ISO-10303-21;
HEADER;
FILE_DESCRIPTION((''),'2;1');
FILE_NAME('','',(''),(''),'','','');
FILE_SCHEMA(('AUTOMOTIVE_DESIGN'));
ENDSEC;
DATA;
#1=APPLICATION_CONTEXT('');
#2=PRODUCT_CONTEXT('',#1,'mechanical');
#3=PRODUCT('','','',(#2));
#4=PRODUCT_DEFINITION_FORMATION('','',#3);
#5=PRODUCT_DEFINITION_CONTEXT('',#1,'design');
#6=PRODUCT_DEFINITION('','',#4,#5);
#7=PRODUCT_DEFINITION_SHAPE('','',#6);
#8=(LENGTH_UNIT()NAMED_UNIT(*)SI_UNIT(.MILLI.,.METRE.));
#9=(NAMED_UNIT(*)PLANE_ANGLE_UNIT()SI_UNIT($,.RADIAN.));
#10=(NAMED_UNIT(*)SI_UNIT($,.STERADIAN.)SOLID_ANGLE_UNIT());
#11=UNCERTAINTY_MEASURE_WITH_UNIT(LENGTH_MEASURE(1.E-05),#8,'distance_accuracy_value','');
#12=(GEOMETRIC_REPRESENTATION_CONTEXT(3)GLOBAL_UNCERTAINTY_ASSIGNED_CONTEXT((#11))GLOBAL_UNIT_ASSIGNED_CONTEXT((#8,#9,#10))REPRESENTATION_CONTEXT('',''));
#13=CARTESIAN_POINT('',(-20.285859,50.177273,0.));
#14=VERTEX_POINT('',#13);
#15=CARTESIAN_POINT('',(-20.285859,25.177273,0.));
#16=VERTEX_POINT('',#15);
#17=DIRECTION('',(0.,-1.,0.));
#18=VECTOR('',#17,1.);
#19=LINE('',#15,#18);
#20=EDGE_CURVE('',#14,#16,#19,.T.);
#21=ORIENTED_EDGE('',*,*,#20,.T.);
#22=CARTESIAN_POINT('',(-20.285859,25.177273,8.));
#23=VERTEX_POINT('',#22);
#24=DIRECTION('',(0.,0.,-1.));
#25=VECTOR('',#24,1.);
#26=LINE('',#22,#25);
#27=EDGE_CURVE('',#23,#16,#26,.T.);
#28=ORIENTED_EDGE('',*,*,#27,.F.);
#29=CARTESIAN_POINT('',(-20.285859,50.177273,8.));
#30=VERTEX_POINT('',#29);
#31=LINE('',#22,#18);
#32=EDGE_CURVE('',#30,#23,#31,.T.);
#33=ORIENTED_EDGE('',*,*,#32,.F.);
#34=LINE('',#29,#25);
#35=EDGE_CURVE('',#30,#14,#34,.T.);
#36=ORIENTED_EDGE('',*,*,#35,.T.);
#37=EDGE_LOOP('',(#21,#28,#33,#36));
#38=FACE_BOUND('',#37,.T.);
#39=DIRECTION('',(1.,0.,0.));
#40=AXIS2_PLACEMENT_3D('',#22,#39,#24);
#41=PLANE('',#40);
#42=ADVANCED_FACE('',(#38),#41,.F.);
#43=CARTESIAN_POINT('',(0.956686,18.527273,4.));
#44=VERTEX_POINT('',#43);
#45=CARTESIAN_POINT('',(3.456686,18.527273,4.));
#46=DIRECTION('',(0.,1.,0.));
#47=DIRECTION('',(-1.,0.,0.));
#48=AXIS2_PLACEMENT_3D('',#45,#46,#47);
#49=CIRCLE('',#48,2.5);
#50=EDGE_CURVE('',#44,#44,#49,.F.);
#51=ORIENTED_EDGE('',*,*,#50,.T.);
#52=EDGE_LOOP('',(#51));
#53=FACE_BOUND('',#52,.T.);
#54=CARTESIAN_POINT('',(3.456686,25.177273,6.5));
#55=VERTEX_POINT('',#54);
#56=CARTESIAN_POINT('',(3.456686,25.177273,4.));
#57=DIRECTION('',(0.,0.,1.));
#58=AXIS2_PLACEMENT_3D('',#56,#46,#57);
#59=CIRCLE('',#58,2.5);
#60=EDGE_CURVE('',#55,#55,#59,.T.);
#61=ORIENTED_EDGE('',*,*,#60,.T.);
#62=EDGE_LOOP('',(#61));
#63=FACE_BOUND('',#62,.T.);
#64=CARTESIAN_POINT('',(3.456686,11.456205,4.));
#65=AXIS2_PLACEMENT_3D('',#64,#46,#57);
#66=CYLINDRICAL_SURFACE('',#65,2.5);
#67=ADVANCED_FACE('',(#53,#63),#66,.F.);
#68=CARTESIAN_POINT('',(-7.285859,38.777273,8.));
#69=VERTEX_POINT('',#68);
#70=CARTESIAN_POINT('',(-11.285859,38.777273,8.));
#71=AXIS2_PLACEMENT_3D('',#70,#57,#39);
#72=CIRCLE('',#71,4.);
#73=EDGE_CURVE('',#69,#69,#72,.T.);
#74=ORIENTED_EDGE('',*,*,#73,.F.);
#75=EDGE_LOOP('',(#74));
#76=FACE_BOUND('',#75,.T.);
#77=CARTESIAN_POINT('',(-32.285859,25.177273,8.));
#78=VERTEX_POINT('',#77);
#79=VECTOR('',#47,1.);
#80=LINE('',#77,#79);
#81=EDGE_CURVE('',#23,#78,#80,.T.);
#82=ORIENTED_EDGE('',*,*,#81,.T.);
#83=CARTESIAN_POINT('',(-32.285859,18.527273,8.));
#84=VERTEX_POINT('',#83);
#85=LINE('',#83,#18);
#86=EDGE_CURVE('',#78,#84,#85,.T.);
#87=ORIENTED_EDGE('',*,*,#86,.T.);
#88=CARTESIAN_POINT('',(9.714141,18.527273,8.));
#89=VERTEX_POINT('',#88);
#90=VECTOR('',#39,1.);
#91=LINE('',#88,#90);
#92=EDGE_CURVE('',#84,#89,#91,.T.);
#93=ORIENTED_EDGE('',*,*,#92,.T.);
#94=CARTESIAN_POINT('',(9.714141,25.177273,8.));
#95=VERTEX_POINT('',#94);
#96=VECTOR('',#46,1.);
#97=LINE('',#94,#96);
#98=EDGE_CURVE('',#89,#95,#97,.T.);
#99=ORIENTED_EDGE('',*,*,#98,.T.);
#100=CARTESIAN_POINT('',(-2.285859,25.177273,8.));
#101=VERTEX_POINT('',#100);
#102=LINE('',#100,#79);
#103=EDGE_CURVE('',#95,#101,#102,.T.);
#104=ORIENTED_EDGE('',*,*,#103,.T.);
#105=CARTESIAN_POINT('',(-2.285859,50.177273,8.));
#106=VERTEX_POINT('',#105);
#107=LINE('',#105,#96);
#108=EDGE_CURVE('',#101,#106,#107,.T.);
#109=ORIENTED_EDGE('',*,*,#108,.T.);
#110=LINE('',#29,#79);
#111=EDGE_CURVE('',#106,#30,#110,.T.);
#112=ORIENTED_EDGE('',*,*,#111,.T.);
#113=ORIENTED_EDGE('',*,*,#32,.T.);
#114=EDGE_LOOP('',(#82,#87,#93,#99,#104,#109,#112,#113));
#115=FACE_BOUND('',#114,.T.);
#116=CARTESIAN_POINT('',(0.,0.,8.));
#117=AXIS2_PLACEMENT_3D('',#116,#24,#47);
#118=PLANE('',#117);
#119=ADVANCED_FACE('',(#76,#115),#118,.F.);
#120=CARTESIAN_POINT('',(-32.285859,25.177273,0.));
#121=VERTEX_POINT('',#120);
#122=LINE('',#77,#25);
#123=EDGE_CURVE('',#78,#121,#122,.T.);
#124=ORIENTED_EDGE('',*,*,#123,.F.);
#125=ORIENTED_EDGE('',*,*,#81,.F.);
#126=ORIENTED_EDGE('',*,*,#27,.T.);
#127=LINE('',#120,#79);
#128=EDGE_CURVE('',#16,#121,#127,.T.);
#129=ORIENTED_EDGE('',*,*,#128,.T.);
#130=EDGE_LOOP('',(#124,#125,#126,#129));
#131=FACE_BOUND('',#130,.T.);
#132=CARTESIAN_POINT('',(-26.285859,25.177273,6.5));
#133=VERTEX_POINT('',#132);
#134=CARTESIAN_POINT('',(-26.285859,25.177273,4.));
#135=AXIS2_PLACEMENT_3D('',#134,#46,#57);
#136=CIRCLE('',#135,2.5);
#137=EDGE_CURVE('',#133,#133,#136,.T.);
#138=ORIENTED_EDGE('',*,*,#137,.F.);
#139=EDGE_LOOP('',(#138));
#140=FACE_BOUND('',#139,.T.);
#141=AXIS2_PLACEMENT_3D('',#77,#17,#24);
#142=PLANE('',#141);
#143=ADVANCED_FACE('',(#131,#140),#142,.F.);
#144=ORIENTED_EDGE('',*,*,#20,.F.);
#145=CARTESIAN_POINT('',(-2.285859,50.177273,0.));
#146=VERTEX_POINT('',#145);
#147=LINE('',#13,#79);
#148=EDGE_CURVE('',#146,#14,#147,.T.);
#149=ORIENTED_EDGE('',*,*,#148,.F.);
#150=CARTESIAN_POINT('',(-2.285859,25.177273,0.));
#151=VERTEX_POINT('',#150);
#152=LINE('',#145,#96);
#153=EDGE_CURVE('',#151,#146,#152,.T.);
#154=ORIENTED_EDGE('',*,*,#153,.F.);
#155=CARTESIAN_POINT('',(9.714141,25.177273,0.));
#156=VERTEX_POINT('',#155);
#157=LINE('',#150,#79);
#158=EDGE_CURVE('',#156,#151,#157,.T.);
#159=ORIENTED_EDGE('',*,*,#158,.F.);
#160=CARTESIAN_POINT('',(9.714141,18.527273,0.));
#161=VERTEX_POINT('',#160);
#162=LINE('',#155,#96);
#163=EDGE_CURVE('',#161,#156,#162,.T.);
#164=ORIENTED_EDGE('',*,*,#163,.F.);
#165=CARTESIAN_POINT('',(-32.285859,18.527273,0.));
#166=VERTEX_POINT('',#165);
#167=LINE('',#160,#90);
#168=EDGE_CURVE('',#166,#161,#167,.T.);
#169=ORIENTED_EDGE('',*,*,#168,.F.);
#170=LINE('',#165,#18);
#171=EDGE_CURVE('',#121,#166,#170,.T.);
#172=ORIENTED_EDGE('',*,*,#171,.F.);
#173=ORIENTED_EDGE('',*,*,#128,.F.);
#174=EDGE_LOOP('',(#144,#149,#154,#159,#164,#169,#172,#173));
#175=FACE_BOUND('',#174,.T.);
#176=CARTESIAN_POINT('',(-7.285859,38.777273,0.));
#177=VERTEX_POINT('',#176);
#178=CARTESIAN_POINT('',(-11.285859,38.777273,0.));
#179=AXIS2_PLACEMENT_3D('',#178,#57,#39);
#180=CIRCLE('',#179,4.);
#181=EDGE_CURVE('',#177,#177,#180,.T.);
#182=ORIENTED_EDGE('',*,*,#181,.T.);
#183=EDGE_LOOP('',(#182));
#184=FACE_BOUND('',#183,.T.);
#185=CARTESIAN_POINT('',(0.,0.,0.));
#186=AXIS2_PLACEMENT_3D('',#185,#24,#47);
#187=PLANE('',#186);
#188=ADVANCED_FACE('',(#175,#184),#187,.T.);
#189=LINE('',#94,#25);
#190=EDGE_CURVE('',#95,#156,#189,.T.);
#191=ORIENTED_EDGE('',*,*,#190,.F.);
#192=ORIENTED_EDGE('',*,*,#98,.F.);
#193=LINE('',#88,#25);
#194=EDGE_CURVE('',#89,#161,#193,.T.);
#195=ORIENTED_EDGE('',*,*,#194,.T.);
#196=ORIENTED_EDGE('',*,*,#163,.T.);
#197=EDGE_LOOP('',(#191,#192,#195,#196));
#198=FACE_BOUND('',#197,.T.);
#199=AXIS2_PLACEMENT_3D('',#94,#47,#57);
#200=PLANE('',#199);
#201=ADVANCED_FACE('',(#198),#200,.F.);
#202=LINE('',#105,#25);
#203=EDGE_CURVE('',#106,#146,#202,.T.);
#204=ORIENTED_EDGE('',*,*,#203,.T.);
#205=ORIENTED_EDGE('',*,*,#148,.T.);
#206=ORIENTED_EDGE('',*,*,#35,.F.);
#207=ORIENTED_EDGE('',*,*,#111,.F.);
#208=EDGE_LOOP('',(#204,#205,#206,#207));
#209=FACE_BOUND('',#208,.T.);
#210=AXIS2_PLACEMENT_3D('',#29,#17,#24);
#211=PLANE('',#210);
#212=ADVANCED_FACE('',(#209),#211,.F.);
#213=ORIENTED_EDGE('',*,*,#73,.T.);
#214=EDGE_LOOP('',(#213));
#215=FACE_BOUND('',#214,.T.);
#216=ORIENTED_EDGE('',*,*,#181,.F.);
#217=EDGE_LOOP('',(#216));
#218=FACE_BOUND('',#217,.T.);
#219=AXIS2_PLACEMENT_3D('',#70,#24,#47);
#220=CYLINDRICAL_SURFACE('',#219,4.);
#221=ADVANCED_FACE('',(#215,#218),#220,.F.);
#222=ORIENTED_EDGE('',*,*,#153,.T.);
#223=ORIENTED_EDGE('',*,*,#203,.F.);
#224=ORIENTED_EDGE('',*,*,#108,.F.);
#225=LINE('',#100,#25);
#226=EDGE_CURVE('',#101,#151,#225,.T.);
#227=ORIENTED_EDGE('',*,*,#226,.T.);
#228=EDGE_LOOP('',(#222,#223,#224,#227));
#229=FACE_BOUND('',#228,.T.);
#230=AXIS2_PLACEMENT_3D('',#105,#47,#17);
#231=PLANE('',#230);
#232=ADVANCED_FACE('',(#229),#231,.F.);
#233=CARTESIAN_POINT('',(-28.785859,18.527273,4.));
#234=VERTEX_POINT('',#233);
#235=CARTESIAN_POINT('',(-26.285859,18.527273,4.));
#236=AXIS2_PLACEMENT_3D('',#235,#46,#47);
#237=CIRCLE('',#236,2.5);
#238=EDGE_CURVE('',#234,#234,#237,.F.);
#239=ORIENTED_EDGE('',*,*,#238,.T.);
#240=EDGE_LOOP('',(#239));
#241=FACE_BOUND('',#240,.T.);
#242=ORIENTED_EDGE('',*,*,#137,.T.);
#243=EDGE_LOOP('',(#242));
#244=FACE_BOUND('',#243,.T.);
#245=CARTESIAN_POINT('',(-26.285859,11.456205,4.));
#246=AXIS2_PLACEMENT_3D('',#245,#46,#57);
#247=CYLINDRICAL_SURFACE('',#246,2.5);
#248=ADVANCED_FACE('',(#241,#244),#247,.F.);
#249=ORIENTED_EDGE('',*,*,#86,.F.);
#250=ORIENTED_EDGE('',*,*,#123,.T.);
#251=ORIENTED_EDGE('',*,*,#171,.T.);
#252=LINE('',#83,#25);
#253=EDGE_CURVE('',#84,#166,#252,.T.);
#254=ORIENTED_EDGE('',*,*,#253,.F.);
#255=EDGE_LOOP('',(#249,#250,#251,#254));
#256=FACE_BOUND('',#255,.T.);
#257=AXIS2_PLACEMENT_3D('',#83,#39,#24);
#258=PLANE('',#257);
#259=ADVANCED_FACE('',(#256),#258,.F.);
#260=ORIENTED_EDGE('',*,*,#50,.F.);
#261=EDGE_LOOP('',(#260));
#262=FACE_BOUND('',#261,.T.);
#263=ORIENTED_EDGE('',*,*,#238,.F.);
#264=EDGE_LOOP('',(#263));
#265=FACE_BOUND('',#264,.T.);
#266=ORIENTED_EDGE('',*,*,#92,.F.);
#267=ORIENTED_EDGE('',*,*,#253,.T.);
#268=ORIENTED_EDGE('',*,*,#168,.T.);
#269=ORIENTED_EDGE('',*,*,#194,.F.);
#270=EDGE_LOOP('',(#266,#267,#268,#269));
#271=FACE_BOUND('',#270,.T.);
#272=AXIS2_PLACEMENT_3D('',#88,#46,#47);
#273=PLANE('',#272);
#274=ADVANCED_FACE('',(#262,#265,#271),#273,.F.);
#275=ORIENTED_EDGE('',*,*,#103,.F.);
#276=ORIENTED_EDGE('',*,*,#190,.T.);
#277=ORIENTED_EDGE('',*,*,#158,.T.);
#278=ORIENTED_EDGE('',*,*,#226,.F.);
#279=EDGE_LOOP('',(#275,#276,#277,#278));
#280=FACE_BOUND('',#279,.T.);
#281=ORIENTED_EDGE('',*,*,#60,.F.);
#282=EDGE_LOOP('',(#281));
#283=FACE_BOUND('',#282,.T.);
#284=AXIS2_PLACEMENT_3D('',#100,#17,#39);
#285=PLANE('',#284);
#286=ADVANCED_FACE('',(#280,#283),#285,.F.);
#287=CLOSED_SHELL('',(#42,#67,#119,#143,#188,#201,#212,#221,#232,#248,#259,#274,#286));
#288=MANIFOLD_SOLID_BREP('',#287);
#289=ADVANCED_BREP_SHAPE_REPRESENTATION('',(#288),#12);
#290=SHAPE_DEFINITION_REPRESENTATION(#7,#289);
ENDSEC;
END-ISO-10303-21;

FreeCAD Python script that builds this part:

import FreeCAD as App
import Part
import Sketcher
from FreeCAD import Vector


def add_polygon(sketch, points):
    """Adds a closed chain of lines whose ends are joined by coincident constraints."""
    first, n = sketch.GeometryCount, len(points)
    for a, b in zip(points, points[1:] + points[:1]):
        sketch.addGeometry(Part.LineSegment(App.Vector(*a, 0), App.Vector(*b, 0)), False)
    for i in range(n):
        sketch.addConstraint(Sketcher.Constraint("Coincident", first + i, 2, first + (i + 1) % n, 1))

doc = App.newDocument("Part")
params = doc.addObject("Spreadsheet::Sheet", "Params")
for row, (alias, value) in enumerate([
    ("sketch1_diameter", "8 mm"),
    ("sketch1_width", "42 mm"),
    ("sketch1_width2", "12 mm"),
    ("sketch1_height", "25 mm"),
    ("sketch1_height2", "6.65 mm"),
    ("pad1_length", "8 mm"),
    ("sketch2_diameter", "5 mm"),
    ("pocket1_length", "6.65 mm"),
], start=1):
    params.set(f"A{row}", alias)
    params.set(f"B{row}", "=" + value)
    params.setAlias(f"B{row}", alias)

body = doc.addObject("PartDesign::Body", "Body")

# Sketch on XY plane
sketch1 = body.newObject("Sketcher::SketchObject", "Sketch")
sketch1.AttachmentSupport = (doc.getObject("XY_Plane"), [""])
sketch1.MapMode = "FlatFace"
add_polygon(sketch1, [(-32.285859, 25.177273), (-32.285859, 18.527273), (9.714141, 18.527273), (9.714141, 25.177273), (-2.285859, 25.177273), (-2.285859, 50.177273), (-20.285859, 50.177273), (-20.285859, 25.177273)])  # lines 0-7
sketch1.addGeometry(Part.Circle(Vector(-11.285859, 38.777273, 0), Vector(0, 0, 1), 4), False)  # 8
sketch1.addConstraint([
    Sketcher.Constraint("Vertical", 0),
    Sketcher.Constraint("Horizontal", 1),
    Sketcher.Constraint("Vertical", 2),
    Sketcher.Constraint("Horizontal", 3),
    Sketcher.Constraint("Vertical", 4),
    Sketcher.Constraint("Horizontal", 5),
    Sketcher.Constraint("Vertical", 6),
    Sketcher.Constraint("Horizontal", 7),
    Sketcher.Constraint("Horizontal", 3, 2, 6, 2),
    Sketcher.Constraint("Equal", 3, 7),
    Sketcher.Constraint("Diameter", 8, 8.0),
    Sketcher.Constraint("DistanceX", 1, 1, 1, 2, 42.0),
    Sketcher.Constraint("DistanceX", 3, 2, 3, 1, 12.0),
    Sketcher.Constraint("DistanceY", 4, 1, 4, 2, 25.0),
    Sketcher.Constraint("DistanceX", 0, 2, 8, 3, 21.0),
    Sketcher.Constraint("DistanceY", 0, 2, 0, 1, 6.65),
    Sketcher.Constraint("DistanceY", 2, 2, 8, 3, 13.6),
    Sketcher.Constraint("DistanceX", 8, 3, -1, 1, 11.285859),
    Sketcher.Constraint("DistanceY", -1, 1, 8, 3, 38.777273),
])
sketch1.setExpression("Constraints[18]", "Params.sketch1_diameter")
sketch1.setExpression("Constraints[19]", "Params.sketch1_width")
sketch1.setExpression("Constraints[20]", "Params.sketch1_width2")
sketch1.setExpression("Constraints[21]", "Params.sketch1_height")
sketch1.setExpression("Constraints[23]", "Params.sketch1_height2")
pad1 = body.newObject("PartDesign::Pad", "Pad")
pad1.Profile = sketch1
pad1.setExpression("Length", "Params.pad1_length")

# Sketch on XZ plane
sketch2 = body.newObject("Sketcher::SketchObject", "Sketch001")
sketch2.AttachmentSupport = (doc.getObject("XZ_Plane"), [""])
sketch2.MapMode = "FlatFace"
sketch2.AttachmentOffset = App.Placement(Vector(0, 0, -25.177273), App.Rotation())
sketch2.addGeometry([
    Part.Circle(Vector(-26.285859, 4, 0), Vector(0, 0, 1), 2.5),
    Part.Circle(Vector(3.456686, 4, 0), Vector(0, 0, 1), 2.5),
], False)
sketch2.addConstraint([
    Sketcher.Constraint("Equal", 0, 1),
    Sketcher.Constraint("Horizontal", 0, 3, 1, 3),
    Sketcher.Constraint("Diameter", 0, 5.0),
    Sketcher.Constraint("DistanceY", -1, 1, 0, 3, 4.0),
    Sketcher.Constraint("DistanceX", 0, 3, -1, 1, 26.285859),
    Sketcher.Constraint("DistanceX", -1, 1, 1, 3, 3.456686),
])
sketch2.setExpression("Constraints[2]", "Params.sketch2_diameter")
pocket1 = body.newObject("PartDesign::Pocket", "Pocket")
pocket1.Profile = sketch2
pocket1.setExpression("Length", "Params.pocket1_length")
pocket1.Reversed = True

doc.recompute()
